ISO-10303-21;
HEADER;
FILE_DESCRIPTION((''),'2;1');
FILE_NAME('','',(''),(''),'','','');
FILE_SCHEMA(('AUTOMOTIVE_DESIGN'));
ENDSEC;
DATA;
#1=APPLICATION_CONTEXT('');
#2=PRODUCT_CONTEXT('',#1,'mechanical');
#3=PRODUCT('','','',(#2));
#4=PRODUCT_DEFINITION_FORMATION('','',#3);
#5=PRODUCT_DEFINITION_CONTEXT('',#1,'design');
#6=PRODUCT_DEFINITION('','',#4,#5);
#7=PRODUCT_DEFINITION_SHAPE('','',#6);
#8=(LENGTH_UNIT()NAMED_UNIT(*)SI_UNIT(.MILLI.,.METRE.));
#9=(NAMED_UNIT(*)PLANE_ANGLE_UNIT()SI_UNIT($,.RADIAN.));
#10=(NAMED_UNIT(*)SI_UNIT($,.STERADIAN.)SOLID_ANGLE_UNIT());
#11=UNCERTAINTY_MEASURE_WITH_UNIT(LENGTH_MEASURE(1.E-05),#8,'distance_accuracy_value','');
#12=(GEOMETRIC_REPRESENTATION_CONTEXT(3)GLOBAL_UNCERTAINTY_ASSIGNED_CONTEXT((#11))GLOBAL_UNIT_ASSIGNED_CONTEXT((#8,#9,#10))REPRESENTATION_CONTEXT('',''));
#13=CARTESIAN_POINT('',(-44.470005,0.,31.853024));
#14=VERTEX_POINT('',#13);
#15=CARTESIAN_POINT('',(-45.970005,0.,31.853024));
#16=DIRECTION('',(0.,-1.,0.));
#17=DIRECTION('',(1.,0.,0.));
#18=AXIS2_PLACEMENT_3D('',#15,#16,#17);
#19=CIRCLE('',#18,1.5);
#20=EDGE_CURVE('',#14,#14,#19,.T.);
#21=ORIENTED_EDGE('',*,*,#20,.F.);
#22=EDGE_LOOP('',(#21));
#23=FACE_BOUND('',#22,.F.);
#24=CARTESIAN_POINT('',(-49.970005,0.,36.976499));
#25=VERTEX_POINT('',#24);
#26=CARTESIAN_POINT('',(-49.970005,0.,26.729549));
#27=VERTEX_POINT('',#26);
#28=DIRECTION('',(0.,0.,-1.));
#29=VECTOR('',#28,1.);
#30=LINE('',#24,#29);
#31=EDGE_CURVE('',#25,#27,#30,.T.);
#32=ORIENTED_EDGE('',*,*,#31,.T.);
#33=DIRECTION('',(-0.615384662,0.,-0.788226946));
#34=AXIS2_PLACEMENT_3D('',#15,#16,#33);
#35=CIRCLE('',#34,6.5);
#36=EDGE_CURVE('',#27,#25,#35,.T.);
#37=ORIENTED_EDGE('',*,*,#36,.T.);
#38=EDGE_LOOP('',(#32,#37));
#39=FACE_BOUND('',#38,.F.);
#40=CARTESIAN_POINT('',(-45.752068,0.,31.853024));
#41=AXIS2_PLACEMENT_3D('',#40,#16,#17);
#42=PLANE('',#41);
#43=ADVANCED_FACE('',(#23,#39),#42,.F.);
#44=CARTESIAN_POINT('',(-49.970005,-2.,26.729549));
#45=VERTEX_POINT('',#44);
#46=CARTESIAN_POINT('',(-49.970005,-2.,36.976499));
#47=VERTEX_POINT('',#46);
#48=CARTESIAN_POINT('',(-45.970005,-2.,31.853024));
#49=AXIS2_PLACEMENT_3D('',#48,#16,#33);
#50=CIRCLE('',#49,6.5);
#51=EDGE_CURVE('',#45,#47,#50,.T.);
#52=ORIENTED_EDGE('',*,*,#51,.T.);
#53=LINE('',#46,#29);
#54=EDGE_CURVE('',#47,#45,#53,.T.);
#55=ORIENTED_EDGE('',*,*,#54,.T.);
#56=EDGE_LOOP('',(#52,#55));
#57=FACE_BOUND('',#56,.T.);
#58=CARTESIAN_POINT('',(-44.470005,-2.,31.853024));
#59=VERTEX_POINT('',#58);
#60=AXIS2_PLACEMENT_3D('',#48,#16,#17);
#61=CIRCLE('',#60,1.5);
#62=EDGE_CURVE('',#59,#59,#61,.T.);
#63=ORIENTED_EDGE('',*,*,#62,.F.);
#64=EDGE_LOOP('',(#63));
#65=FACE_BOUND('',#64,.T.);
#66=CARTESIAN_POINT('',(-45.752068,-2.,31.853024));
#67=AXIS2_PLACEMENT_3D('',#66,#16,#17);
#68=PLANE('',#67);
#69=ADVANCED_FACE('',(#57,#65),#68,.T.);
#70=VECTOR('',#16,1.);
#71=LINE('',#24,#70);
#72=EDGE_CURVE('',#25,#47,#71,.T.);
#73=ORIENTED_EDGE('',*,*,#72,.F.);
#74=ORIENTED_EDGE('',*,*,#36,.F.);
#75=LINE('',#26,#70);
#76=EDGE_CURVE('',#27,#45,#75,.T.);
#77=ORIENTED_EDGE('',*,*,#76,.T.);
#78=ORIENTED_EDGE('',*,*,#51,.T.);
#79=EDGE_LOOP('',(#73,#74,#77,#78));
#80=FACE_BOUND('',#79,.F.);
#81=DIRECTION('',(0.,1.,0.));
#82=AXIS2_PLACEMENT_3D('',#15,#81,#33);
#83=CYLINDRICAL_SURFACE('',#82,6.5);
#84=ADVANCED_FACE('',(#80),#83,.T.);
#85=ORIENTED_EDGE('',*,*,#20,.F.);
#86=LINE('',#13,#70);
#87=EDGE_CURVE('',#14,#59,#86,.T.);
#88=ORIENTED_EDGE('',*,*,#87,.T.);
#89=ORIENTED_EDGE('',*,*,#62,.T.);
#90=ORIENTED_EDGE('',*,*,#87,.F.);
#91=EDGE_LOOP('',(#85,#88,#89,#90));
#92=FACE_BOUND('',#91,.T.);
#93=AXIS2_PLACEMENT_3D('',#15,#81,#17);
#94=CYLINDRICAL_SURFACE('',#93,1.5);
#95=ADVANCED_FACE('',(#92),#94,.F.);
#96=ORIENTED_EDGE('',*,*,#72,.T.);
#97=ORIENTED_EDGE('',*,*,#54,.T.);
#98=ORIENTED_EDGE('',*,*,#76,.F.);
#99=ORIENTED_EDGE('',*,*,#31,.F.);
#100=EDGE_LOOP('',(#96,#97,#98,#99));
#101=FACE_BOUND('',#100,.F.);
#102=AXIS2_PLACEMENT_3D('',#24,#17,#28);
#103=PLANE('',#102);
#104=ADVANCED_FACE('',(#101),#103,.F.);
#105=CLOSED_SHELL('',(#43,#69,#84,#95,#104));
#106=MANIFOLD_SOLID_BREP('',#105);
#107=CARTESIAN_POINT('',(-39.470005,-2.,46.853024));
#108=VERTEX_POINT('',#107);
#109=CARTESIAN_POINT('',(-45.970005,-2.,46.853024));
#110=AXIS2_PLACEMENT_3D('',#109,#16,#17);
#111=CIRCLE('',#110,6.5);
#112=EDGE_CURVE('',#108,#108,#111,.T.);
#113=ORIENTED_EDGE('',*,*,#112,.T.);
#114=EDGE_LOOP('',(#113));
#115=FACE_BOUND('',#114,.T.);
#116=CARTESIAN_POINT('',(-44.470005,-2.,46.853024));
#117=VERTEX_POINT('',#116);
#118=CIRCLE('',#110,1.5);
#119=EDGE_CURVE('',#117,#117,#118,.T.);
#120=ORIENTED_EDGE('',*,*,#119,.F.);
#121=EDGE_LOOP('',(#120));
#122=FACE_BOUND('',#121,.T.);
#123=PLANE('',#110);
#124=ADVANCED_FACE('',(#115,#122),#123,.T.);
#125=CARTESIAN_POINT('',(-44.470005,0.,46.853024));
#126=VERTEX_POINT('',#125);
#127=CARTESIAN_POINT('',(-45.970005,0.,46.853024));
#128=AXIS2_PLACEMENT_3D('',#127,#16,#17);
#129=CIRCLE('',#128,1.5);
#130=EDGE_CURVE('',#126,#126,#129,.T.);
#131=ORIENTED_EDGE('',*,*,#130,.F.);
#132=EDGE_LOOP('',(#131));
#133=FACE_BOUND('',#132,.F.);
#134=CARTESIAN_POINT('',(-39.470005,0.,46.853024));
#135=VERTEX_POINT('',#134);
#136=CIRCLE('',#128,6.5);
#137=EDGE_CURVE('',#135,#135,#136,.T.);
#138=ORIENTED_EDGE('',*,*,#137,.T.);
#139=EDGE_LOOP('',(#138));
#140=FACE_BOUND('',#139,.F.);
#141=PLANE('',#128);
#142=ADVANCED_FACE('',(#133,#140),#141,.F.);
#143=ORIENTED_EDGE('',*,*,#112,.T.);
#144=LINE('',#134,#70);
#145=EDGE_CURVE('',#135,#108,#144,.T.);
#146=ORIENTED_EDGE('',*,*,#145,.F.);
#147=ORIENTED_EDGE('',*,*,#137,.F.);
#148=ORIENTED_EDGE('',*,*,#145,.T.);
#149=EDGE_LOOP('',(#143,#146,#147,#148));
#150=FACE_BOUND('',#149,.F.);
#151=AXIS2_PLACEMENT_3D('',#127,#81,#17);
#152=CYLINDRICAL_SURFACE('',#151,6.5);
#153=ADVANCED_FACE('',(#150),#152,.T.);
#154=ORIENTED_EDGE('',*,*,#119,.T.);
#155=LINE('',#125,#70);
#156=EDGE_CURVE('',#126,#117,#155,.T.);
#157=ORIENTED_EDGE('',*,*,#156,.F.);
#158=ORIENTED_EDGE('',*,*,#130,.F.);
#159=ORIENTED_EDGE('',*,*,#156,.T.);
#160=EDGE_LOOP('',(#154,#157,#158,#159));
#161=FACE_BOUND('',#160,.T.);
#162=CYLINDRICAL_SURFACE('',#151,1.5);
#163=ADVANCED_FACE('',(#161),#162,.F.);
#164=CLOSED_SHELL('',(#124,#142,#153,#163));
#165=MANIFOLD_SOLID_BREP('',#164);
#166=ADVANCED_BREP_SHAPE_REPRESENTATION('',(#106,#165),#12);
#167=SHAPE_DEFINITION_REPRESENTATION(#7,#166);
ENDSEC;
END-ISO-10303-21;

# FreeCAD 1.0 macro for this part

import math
import FreeCAD as App
import Part
import Sketcher

V = App.Vector

doc = App.newDocument("Part")
params = doc.addObject("Spreadsheet::Sheet", "Params")
for row, (alias, value) in enumerate([
    ("sketch1_diameter", "13 mm"),
    ("sketch1_diameter2", "3 mm"),
    ("pad1_length", "2 mm"),
], start=1):
    params.set(f"A{row}", alias)
    params.set(f"B{row}", "=" + value)
    params.setAlias(f"B{row}", alias)

body = doc.addObject("PartDesign::Body", "Body")
body.AllowCompound = True

# Sketch on XZ plane
sketch1 = doc.addObject("Sketcher::SketchObject", "Sketch")
body.addObject(sketch1)
sketch1.AttachmentSupport = (doc.XZ_Plane, [""])
sketch1.MapMode = "FlatFace"
sketch1.addGeometry([
    Part.Circle(V(-46, 46.9, 0), V(0, 0, 1), 6.5),  # 0
    Part.Circle(V(-46, 46.9, 0), V(0, 0, 1), 1.5),  # 1
    Part.LineSegment(V(-50, 37, 0), V(-50, 26.7, 0)),  # 2
    Part.ArcOfCircle(Part.Circle(V(-46, 31.9, 0), V(0, 0, 1), 6.5), math.radians(-128), math.radians(128)),  # 3
    Part.Circle(V(-46, 31.9, 0), V(0, 0, 1), 1.5),  # 4
], False)
sketch1.addConstraint([
    Sketcher.Constraint("Coincident", 2, 1, 3, 2),
    Sketcher.Constraint("Coincident", 3, 1, 2, 2),
    Sketcher.Constraint("Vertical", 2),
    Sketcher.Constraint("Coincident", 1, 3, 0, 3),
    Sketcher.Constraint("Coincident", 4, 3, 3, 3),
    Sketcher.Constraint("Equal", 0, 3),
    Sketcher.Constraint("Equal", 1, 4),
    Sketcher.Constraint("Vertical", 1, 3, 3, 3),
    Sketcher.Constraint("Diameter", 0, 13.0),
    Sketcher.Constraint("Diameter", 1, 3.0),
    Sketcher.Constraint("DistanceY", 3, 3, 0, 3, 15.0),
    Sketcher.Constraint("DistanceX", 2, 1, 4, 3, 4.0),
    Sketcher.Constraint("DistanceY", -1, 1, 2, 1, 36.976499),
    Sketcher.Constraint("DistanceX", 0, 3, -1, 1, 45.970005),
])
sketch1.setExpression("Constraints[8]", "Params.sketch1_diameter")
sketch1.setExpression("Constraints[9]", "Params.sketch1_diameter2")
pad1 = doc.addObject("PartDesign::Pad", "Pad")
body.addObject(pad1)
pad1.Profile = sketch1
pad1.setExpression("Length", "Params.pad1_length")

doc.recompute()
